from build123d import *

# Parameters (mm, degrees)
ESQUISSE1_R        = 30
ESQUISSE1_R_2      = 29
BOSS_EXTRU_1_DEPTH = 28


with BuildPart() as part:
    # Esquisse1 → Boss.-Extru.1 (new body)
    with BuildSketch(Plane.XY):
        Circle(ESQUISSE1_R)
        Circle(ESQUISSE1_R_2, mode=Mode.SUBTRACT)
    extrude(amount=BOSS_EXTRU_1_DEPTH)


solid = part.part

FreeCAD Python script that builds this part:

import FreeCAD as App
import Part
import Sketcher
Q = App.Units.Quantity

doc = App.newDocument("Part")
params = doc.addObject("Spreadsheet::Sheet", "Params")
for row, (alias, value) in enumerate([
    ("sketch1_diameter", "60 mm"),
    ("sketch1_diameter2", "58 mm"),
    ("pad1_length", "28 mm"),
], start=1):
    params.set(f"A{row}", alias)
    params.set(f"B{row}", "=" + value)
    params.setAlias(f"B{row}", alias)

body = doc.addObject("PartDesign::Body", "Body")

# Sketch on XY plane
sketch1 = body.newObject("Sketcher::SketchObject", "Sketch")
sketch1.AttachmentSupport = (doc.getObject("XY_Plane"), [""])
sketch1.MapMode = "FlatFace"
sketch1.addGeometry([
    Part.Circle(App.Vector(0, 0, 0), App.Vector(0, 0, 1), 30),
    Part.Circle(App.Vector(0, 0, 0), App.Vector(0, 0, 1), 29),
], False)
sketch1.addConstraint([
    Sketcher.Constraint("Coincident", 0, 3, -1, 1),
    Sketcher.Constraint("Coincident", 1, 3, -1, 1),
    Sketcher.Constraint("Diameter", 0, Q("60 mm")),
    Sketcher.Constraint("Diameter", 1, Q("58 mm")),
])
sketch1.setExpression("Constraints[2]", "Params.sketch1_diameter")
sketch1.setExpression("Constraints[3]", "Params.sketch1_diameter2")
pad1 = body.newObject("PartDesign::Pad", "Pad")
pad1.Profile = sketch1
pad1.setExpression("Length", "Params.pad1_length")

doc.recompute()
